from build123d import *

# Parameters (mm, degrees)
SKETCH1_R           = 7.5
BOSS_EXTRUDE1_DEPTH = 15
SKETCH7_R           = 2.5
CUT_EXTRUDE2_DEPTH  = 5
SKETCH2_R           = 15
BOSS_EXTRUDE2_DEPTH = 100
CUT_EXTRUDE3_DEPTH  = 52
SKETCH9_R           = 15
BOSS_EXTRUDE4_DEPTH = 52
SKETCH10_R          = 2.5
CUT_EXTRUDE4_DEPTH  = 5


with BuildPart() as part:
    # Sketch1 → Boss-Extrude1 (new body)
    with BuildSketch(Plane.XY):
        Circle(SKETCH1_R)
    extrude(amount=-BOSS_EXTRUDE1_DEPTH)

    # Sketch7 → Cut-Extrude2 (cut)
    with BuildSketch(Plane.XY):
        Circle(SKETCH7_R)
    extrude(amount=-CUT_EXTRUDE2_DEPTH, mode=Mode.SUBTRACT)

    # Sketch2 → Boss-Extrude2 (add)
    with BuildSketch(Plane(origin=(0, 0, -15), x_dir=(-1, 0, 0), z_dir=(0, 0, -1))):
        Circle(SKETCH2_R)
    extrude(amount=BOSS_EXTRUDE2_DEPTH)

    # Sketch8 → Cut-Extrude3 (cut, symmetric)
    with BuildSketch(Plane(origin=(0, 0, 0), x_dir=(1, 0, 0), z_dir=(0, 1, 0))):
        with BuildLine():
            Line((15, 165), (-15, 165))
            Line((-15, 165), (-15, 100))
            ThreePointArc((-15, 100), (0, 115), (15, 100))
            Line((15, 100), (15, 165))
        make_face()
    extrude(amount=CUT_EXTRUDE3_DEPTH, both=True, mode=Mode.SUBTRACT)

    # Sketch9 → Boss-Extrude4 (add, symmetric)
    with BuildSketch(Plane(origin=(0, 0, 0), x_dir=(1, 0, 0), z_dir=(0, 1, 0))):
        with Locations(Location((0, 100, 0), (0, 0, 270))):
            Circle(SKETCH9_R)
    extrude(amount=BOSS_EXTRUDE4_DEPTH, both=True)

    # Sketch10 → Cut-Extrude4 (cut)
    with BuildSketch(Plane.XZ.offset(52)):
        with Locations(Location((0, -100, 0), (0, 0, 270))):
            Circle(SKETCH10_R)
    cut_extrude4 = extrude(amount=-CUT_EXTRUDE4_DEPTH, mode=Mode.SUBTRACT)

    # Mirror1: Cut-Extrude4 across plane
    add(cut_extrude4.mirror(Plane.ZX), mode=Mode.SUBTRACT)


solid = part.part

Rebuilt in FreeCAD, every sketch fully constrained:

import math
import FreeCAD as App
import Part
import Sketcher

V = App.Vector
Q = App.Units.Quantity

doc = App.newDocument("Part")
body = doc.addObject("PartDesign::Body", "Body")

# Sketch on XY plane
sketch1 = doc.addObject("Sketcher::SketchObject", "Sketch")
body.addObject(sketch1)
sketch1.AttachmentSupport = (doc.XY_Plane, [""])
sketch1.MapMode = "FlatFace"
sketch1.addGeometry(Part.Circle(V(0, 0, 0), V(0, 0, 1), 7.5), False)
sketch1.addConstraint(Sketcher.Constraint("Coincident", 0, 3, -1, 1))
sketch1.addConstraint(Sketcher.Constraint("Diameter", 0, Q("15 mm")))
pad1 = doc.addObject("PartDesign::Pad", "Pad")
body.addObject(pad1)
pad1.Profile = sketch1
pad1.Length = 15
pad1.Reversed = True

# Sketch on XY plane
sketch2 = doc.addObject("Sketcher::SketchObject", "Sketch001")
body.addObject(sketch2)
sketch2.AttachmentSupport = (doc.XY_Plane, [""])
sketch2.MapMode = "FlatFace"
sketch2.addGeometry(Part.Circle(V(0, 0, 0), V(0, 0, 1), 2.5), False)
sketch2.addConstraint(Sketcher.Constraint("Coincident", 0, 3, -1, 1))
sketch2.addConstraint(Sketcher.Constraint("Diameter", 0, Q("5 mm")))
pocket1 = doc.addObject("PartDesign::Pocket", "Pocket")
body.addObject(pocket1)
pocket1.Profile = sketch2
pocket1.Length = 5

# Sketch on XY plane
sketch3 = doc.addObject("Sketcher::SketchObject", "Sketch002")
body.addObject(sketch3)
sketch3.AttachmentSupport = (doc.XY_Plane, [""])
sketch3.MapMode = "FlatFace"
sketch3.AttachmentOffset = App.Placement(V(0, 0, -15), App.Rotation())
sketch3.addGeometry(Part.Circle(V(0, 0, 0), V(0, 0, 1), 15), False)
sketch3.addConstraint(Sketcher.Constraint("Coincident", 0, 3, -1, 1))
sketch3.addConstraint(Sketcher.Constraint("Diameter", 0, Q("30 mm")))
pad2 = doc.addObject("PartDesign::Pad", "Pad001")
body.addObject(pad2)
pad2.Profile = sketch3
pad2.Length = 100
pad2.Reversed = True

# Sketch on XZ plane
sketch4 = doc.addObject("Sketcher::SketchObject", "Sketch003")
body.addObject(sketch4)
sketch4.AttachmentSupport = (doc.XZ_Plane, [""])
sketch4.MapMode = "FlatFace"
sketch4.addGeometry(Part.LineSegment(V(15, -165, 0), V(-15, -165, 0)), False)
sketch4.addGeometry(Part.LineSegment(V(-15, -165, 0), V(-15, -100, 0)), False)
sketch4.addGeometry(Part.ArcOfCircle(Part.Circle(V(0, -100, 0), V(0, 0, 1), 15), math.radians(180), math.radians(360)), False)
sketch4.addGeometry(Part.LineSegment(V(15, -100, 0), V(15, -165, 0)), False)
sketch4.addConstraint(Sketcher.Constraint("Coincident", 0, 2, 1, 1))
sketch4.addConstraint(Sketcher.Constraint("Tangent", 1, 2, 2, 1))
sketch4.addConstraint(Sketcher.Constraint("Tangent", 2, 2, 3, 1))
sketch4.addConstraint(Sketcher.Constraint("Coincident", 3, 2, 0, 1))
sketch4.addConstraint(Sketcher.Constraint("Horizontal", 0))
sketch4.addConstraint(Sketcher.Constraint("Vertical", 1))
sketch4.addConstraint(Sketcher.Constraint("Vertical", 3))
sketch4.addConstraint(Sketcher.Constraint("PointOnObject", 2, 3, -2))
sketch4.addConstraint(Sketcher.Constraint("Radius", 2, Q("15 mm")))
sketch4.addConstraint(Sketcher.Constraint("DistanceY", 1, 1, 1, 2, Q("65 mm")))
sketch4.addConstraint(Sketcher.Constraint("DistanceY", 2, 3, -1, 1, Q("100 mm")))
pocket2 = doc.addObject("PartDesign::Pocket", "Pocket001")
body.addObject(pocket2)
pocket2.Profile = sketch4
pocket2.Length = 104
pocket2.Midplane = True

# Sketch on XZ plane
sketch5 = doc.addObject("Sketcher::SketchObject", "Sketch004")
body.addObject(sketch5)
sketch5.AttachmentSupport = (doc.XZ_Plane, [""])
sketch5.MapMode = "FlatFace"
sketch5.addGeometry(Part.Circle(V(0, -100, 0), V(0, 0, 1), 15), False)
sketch5.addConstraint(Sketcher.Constraint("PointOnObject", 0, 3, -2))
sketch5.addConstraint(Sketcher.Constraint("Diameter", 0, Q("30 mm")))
sketch5.addConstraint(Sketcher.Constraint("DistanceY", 0, 3, -1, 1, Q("100 mm")))
pad3 = doc.addObject("PartDesign::Pad", "Pad002")
body.addObject(pad3)
pad3.Profile = sketch5
pad3.Length = 104
pad3.Midplane = True

# Sketch on XZ plane
sketch6 = doc.addObject("Sketcher::SketchObject", "Sketch005")
body.addObject(sketch6)
sketch6.AttachmentSupport = (doc.XZ_Plane, [""])
sketch6.MapMode = "FlatFace"
sketch6.AttachmentOffset = App.Placement(V(0, 0, 52), App.Rotation())
sketch6.addGeometry(Part.Circle(V(0, -100, 0), V(0, 0, 1), 2.5), False)
sketch6.addConstraint(Sketcher.Constraint("PointOnObject", 0, 3, -2))
sketch6.addConstraint(Sketcher.Constraint("Diameter", 0, Q("5 mm")))
sketch6.addConstraint(Sketcher.Constraint("DistanceY", 0, 3, -1, 1, Q("100 mm")))
pocket3 = doc.addObject("PartDesign::Pocket", "Pocket002")
body.addObject(pocket3)
pocket3.Profile = sketch6
pocket3.Length = 5
doc.recompute()

mirrored = doc.addObject("PartDesign::Mirrored", "Mirrored")
body.addObject(mirrored)
mirrored.Originals = [pocket3]
mirrored.MirrorPlane = (doc.XZ_Plane, [""])
body.Tip = mirrored

doc.recompute()
